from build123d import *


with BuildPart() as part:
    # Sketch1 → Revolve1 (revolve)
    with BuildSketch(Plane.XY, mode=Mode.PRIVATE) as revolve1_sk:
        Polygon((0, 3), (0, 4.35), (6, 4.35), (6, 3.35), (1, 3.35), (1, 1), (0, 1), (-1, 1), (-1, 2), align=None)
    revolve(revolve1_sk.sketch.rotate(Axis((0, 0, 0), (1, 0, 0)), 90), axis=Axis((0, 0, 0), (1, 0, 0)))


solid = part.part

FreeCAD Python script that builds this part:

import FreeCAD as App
import Part
import Sketcher
from FreeCAD import Vector
Q = App.Units.Quantity

doc = App.newDocument("Part")
body = doc.addObject("PartDesign::Body", "Body")

# Sketch on XY plane
sketch1 = body.newObject("Sketcher::SketchObject", "Sketch")
sketch1.AttachmentSupport = (doc.getObject("XY_Plane"), [""])
sketch1.MapMode = "FlatFace"
sketch1.addGeometry(Part.LineSegment(Vector(0, 4.3, 0), Vector(0, 3, 0)), False)
sketch1.addGeometry(Part.LineSegment(Vector(0, 3, 0), Vector(-1, 2, 0)), False)
sketch1.addGeometry(Part.LineSegment(Vector(-1, 2, 0), Vector(-1, 1, 0)), False)
sketch1.addGeometry(Part.LineSegment(Vector(-1, 1, 0), Vector(1, 1, 0)), False)
sketch1.addGeometry(Part.LineSegment(Vector(1, 1, 0), Vector(1, 3.4, 0)), False)
sketch1.addGeometry(Part.LineSegment(Vector(1, 3.4, 0), Vector(6, 3.4, 0)), False)
sketch1.addGeometry(Part.LineSegment(Vector(6, 3.4, 0), Vector(6, 4.3, 0)), False)
sketch1.addGeometry(Part.LineSegment(Vector(6, 4.3, 0), Vector(0, 4.3, 0)), False)
sketch1.addConstraint(Sketcher.Constraint("Coincident", 0, 2, 1, 1))
sketch1.addConstraint(Sketcher.Constraint("Coincident", 1, 2, 2, 1))
sketch1.addConstraint(Sketcher.Constraint("Coincident", 2, 2, 3, 1))
sketch1.addConstraint(Sketcher.Constraint("Coincident", 3, 2, 4, 1))
sketch1.addConstraint(Sketcher.Constraint("Coincident", 4, 2, 5, 1))
sketch1.addConstraint(Sketcher.Constraint("Coincident", 5, 2, 6, 1))
sketch1.addConstraint(Sketcher.Constraint("Coincident", 6, 2, 7, 1))
sketch1.addConstraint(Sketcher.Constraint("Coincident", 7, 2, 0, 1))
sketch1.addConstraint(Sketcher.Constraint("Vertical", 0))
sketch1.addConstraint(Sketcher.Constraint("Vertical", 2))
sketch1.addConstraint(Sketcher.Constraint("Horizontal", 3))
sketch1.addConstraint(Sketcher.Constraint("Vertical", 4))
sketch1.addConstraint(Sketcher.Constraint("Horizontal", 5))
sketch1.addConstraint(Sketcher.Constraint("Vertical", 6))
sketch1.addConstraint(Sketcher.Constraint("Horizontal", 7))
sketch1.addConstraint(Sketcher.Constraint("PointOnObject", 0, 2, -2))
sketch1.addConstraint(Sketcher.Constraint("Equal", 2, 6))
sketch1.addConstraint(Sketcher.Constraint("DistanceX", 3, 1, 3, 2, 2.0))
sketch1.addConstraint(Sketcher.Constraint("DistanceX", 5, 1, 5, 2, 5.0))
sketch1.addConstraint(Sketcher.Constraint("DistanceX", 7, 2, 7, 1, 6.0))
sketch1.addConstraint(Sketcher.Constraint("DistanceY", 2, 2, 2, 1, 1.0))
sketch1.addConstraint(Sketcher.Constraint("Angle", 1, Q("-135 deg")))
sketch1.addConstraint(Sketcher.Constraint("DistanceY", -1, 1, 0, 2, 3.0))
sketch1.addConstraint(Sketcher.Constraint("DistanceY", 0, 2, 0, 1, 1.35))
revolution = body.newObject("PartDesign::Revolution", "Revolution")
revolution.Profile = sketch1
revolution.ReferenceAxis = (sketch1, ["H_Axis"])
revolution.Angle = 360

doc.recompute()
